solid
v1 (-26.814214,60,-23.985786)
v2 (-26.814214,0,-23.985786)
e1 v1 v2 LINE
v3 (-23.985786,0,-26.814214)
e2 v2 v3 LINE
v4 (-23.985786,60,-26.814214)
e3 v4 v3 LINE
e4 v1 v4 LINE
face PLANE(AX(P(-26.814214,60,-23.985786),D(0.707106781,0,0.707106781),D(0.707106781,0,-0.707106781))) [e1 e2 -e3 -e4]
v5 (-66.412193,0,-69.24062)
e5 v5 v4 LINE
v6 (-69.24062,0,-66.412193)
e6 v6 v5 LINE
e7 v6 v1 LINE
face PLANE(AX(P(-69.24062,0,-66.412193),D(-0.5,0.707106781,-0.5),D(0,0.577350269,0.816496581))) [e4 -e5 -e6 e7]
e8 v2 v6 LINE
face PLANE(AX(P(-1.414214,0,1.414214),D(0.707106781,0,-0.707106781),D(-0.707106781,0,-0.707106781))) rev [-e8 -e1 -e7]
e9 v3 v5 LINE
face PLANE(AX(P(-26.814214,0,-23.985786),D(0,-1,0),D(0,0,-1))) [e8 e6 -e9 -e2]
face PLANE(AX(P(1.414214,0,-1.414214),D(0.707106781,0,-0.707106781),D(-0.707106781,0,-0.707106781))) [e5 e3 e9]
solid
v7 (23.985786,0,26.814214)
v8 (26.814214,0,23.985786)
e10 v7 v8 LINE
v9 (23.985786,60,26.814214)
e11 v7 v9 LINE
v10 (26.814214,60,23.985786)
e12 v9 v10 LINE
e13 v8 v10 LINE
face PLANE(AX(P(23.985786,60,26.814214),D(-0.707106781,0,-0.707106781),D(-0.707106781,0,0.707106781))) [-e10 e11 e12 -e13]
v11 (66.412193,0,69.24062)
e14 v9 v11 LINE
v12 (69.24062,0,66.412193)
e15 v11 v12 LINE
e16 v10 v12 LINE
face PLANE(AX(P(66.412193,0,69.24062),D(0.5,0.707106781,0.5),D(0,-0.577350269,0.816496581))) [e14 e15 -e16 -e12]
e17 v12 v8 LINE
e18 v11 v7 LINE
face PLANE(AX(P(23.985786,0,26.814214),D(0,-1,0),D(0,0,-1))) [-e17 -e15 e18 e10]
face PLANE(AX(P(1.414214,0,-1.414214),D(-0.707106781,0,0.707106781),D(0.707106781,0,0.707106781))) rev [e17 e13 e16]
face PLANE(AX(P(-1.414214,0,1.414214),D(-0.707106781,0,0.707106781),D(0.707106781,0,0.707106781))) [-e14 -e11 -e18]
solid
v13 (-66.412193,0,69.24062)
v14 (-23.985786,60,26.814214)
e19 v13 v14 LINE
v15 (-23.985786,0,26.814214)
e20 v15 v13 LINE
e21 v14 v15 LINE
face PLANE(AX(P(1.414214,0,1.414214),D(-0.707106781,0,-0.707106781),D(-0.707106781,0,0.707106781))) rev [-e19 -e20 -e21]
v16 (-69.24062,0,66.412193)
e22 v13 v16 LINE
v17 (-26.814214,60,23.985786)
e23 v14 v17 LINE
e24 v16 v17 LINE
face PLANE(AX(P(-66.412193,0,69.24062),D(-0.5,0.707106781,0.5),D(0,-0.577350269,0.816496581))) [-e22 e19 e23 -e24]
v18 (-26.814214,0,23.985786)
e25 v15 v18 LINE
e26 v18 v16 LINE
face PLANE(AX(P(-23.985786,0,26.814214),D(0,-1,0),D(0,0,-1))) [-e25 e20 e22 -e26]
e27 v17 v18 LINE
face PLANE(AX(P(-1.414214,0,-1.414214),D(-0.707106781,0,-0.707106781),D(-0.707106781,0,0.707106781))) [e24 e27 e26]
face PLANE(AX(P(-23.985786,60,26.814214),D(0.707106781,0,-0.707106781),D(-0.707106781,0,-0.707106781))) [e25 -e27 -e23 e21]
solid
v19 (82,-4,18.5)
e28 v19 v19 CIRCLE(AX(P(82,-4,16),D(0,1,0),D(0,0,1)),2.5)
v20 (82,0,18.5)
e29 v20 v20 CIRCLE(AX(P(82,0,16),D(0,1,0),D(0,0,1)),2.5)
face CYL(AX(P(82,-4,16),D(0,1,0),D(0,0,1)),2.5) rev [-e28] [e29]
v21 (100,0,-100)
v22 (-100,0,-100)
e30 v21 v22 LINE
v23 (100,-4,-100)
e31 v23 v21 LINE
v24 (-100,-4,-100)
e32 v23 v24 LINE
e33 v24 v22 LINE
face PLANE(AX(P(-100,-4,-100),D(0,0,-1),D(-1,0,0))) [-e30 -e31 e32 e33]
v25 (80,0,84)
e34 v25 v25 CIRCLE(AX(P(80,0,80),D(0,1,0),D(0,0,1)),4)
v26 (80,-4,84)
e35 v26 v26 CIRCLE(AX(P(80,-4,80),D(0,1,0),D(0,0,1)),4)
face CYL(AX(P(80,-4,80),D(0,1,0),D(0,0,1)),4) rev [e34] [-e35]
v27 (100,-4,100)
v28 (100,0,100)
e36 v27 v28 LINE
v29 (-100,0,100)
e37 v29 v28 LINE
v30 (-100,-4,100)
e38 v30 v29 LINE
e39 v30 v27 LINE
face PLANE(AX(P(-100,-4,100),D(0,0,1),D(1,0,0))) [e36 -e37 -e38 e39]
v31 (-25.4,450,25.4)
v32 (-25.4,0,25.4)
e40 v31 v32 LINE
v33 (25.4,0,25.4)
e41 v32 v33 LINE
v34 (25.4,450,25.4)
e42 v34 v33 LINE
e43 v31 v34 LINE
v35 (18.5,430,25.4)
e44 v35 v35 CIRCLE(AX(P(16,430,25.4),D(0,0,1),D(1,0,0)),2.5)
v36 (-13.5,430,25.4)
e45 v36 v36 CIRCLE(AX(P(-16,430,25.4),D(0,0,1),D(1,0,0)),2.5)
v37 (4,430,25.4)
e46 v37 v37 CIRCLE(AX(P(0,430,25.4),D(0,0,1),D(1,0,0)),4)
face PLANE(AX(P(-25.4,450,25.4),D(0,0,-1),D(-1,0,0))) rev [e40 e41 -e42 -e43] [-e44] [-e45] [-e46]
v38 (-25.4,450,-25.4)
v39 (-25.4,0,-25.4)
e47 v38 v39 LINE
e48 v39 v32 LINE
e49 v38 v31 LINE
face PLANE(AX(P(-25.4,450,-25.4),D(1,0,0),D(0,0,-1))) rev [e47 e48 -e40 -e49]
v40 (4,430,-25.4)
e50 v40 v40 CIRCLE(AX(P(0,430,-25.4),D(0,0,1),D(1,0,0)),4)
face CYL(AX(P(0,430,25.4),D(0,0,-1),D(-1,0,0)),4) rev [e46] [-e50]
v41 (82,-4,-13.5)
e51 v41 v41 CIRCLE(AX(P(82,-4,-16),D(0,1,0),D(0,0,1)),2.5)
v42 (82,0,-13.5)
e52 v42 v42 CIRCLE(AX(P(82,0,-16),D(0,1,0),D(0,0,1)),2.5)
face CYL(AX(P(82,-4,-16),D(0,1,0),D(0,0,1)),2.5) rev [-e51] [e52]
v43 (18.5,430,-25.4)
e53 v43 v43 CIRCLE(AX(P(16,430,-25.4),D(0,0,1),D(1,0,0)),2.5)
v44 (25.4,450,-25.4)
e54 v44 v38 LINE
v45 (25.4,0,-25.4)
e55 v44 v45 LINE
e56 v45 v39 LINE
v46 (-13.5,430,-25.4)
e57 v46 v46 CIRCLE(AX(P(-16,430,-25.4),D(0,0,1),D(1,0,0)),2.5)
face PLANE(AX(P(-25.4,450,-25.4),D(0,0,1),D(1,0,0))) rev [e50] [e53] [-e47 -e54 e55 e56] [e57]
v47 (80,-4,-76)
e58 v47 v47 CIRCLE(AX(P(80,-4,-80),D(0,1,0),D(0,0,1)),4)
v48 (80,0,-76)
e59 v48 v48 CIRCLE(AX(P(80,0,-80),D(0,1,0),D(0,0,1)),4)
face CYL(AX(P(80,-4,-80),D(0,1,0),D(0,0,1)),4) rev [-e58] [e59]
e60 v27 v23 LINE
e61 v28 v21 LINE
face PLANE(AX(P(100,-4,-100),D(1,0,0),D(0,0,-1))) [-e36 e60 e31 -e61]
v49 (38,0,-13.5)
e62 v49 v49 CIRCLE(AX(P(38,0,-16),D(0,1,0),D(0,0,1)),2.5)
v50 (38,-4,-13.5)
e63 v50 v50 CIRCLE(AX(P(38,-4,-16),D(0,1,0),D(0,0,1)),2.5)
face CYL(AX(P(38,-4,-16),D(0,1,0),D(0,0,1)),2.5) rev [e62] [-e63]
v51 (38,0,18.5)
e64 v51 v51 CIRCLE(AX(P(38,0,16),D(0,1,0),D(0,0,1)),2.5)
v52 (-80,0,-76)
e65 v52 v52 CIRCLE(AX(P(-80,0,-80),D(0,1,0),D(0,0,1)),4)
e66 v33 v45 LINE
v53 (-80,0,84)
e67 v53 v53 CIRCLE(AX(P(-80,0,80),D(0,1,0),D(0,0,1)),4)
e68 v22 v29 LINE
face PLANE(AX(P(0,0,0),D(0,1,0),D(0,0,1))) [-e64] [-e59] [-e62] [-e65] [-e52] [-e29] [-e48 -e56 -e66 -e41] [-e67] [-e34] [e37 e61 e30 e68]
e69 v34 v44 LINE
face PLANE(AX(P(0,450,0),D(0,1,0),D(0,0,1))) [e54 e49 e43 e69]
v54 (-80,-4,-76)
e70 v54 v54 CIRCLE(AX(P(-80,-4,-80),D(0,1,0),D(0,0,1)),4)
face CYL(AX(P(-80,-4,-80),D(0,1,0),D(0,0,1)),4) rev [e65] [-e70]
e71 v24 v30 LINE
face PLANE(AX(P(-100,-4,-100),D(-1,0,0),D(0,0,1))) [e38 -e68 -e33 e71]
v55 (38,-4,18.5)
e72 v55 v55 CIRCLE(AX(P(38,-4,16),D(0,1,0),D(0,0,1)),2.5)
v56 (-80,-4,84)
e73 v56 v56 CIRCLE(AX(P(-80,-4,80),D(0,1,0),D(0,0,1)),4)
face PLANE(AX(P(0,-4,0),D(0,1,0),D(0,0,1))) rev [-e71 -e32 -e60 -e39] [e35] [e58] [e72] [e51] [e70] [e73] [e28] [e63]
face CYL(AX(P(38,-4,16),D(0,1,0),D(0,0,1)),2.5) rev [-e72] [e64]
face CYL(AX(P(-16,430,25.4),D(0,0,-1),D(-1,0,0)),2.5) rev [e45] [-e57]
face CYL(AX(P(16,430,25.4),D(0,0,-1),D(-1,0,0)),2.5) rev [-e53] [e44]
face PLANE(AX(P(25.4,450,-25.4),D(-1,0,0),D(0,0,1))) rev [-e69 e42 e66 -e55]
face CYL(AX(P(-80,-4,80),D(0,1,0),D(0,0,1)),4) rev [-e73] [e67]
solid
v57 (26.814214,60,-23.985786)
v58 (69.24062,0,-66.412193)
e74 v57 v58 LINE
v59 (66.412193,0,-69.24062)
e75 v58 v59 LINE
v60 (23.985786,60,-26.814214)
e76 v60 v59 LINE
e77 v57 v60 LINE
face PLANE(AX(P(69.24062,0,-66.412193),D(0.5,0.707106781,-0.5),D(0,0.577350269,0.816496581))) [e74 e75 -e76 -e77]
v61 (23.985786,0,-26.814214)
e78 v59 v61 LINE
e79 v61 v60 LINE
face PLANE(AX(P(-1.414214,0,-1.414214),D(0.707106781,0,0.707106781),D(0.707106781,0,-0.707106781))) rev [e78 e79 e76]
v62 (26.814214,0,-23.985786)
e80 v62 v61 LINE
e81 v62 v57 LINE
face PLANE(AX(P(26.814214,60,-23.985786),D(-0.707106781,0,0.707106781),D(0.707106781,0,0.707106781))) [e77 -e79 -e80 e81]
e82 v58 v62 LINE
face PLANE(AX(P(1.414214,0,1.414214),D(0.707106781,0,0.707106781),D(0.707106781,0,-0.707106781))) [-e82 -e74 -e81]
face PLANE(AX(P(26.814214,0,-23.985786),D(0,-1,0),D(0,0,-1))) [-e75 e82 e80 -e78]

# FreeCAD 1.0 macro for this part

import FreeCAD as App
import Part
import Sketcher
Q = App.Units.Quantity


def add_polygon(sketch, points):
    """Adds a closed chain of lines whose ends are joined by coincident constraints."""
    first, n = sketch.GeometryCount, len(points)
    for a, b in zip(points, points[1:] + points[:1]):
        sketch.addGeometry(Part.LineSegment(App.Vector(*a, 0), App.Vector(*b, 0)), False)
    for i in range(n):
        sketch.addConstraint(Sketcher.Constraint("Coincident", first + i, 2, first + (i + 1) % n, 1))

doc = App.newDocument("Part")
body = doc.addObject("PartDesign::Body", "Body")

sketch1 = body.newObject("Sketcher::SketchObject", "Sketch")
sketch1.AttachmentSupport = (doc.getObject("XZ_Plane"), [""])
sketch1.MapMode = "FlatFace"
add_polygon(sketch1, [(-100, -100), (-100, 100), (100, 100), (100, -100)])
sketch1.addConstraint([
    Sketcher.Constraint("Vertical", 0),
    Sketcher.Constraint("Horizontal", 1),
    Sketcher.Constraint("Vertical", 2),
    Sketcher.Constraint("Horizontal", 3),
    Sketcher.Constraint("Symmetric", 0, 2, 2, 2, -1, 1),
    Sketcher.Constraint("Equal", 3, 0),
    Sketcher.Constraint("DistanceX", 1, 1, 1, 2, Q("200 mm")),
])
pad1 = body.newObject("PartDesign::Pad", "Pad")
pad1.Profile = sketch1
pad1.Length = 4

sketch2 = body.newObject("Sketcher::SketchObject", "Sketch001")
sketch2.AttachmentSupport = (doc.getObject("XZ_Plane"), [""])
sketch2.MapMode = "FlatFace"
add_polygon(sketch2, [(-25, -25), (-25, 25), (25, 25), (25, -25)])
sketch2.addConstraint([
    Sketcher.Constraint("Vertical", 0),
    Sketcher.Constraint("Horizontal", 1),
    Sketcher.Constraint("Vertical", 2),
    Sketcher.Constraint("Horizontal", 3),
    Sketcher.Constraint("Symmetric", 0, 2, 2, 2, -1, 1),
    Sketcher.Constraint("Equal", 3, 0),
    Sketcher.Constraint("DistanceX", 1, 1, 1, 2, Q("50.8 mm")),
])
pad2 = body.newObject("PartDesign::Pad", "Pad001")
pad2.Profile = sketch2
pad2.Length = 450
pad2.Reversed = True

sketch3 = body.newObject("Sketcher::SketchObject", "Sketch002")
sketch3.AttachmentSupport = (doc.getObject("XZ_Plane"), [""])
sketch3.MapMode = "FlatFace"
sketch3.addGeometry([
    Part.Circle(App.Vector(80, 80, 0), App.Vector(0, 0, 1), 4),
    Part.Circle(App.Vector(80, -80, 0), App.Vector(0, 0, 1), 4),
    Part.Circle(App.Vector(-80, -80, 0), App.Vector(0, 0, 1), 4),
    Part.Circle(App.Vector(-80, 80, 0), App.Vector(0, 0, 1), 4),
], False)
sketch3.addConstraint([
    Sketcher.Constraint("Equal", 0, 1),
    Sketcher.Constraint("Equal", 1, 2),
    Sketcher.Constraint("Equal", 2, 3),
    Sketcher.Constraint("Symmetric", 0, 3, 2, 3, -1, 1),
    Sketcher.Constraint("Symmetric", 1, 3, 3, 3, -1, 1),
    Sketcher.Constraint("Symmetric", 1, 3, 2, 3, -2),
    Sketcher.Constraint("Diameter", 0, Q("8 mm")),
    Sketcher.Constraint("DistanceX", -1, 1, 0, 3, Q("80 mm")),
    Sketcher.Constraint("DistanceY", -1, 1, 0, 3, Q("80 mm")),
])
pocket1 = body.newObject("PartDesign::Pocket", "Pocket")
pocket1.Profile = sketch3
pocket1.Length = 4
pocket1.Reversed = True

sketch4 = body.newObject("Sketcher::SketchObject", "Sketch003")
sketch4.AttachmentSupport = (doc.getObject("XY_Plane"), [""])
sketch4.MapMode = "FlatFace"
sketch4.addGeometry([
    Part.Circle(App.Vector(0, 430, 0), App.Vector(0, 0, 1), 4),
    Part.Circle(App.Vector(16, 430, 0), App.Vector(0, 0, 1), 2.5),
    Part.Circle(App.Vector(-16, 430, 0), App.Vector(0, 0, 1), 2.5),
], False)
sketch4.addConstraint([
    Sketcher.Constraint("Equal", 1, 2),
    Sketcher.Constraint("Symmetric", 1, 3, 2, 3, -2),
    Sketcher.Constraint("PointOnObject", 0, 3, -2),
    Sketcher.Constraint("Horizontal", 0, 3, 1, 3),
    Sketcher.Constraint("Diameter", 0, Q("8 mm")),
    Sketcher.Constraint("Diameter", 1, Q("5 mm")),
    Sketcher.Constraint("DistanceY", -1, 1, 0, 3, Q("430 mm")),
    Sketcher.Constraint("DistanceX", -1, 1, 1, 3, Q("16 mm")),
])
pocket2 = body.newObject("PartDesign::Pocket", "Pocket001")
pocket2.Profile = sketch4
pocket2.Type = "ThroughAll"
pocket2.Midplane = True

sketch5 = body.newObject("Sketcher::SketchObject", "Sketch004")
sketch5.AttachmentSupport = (doc.getObject("XZ_Plane"), [""])
sketch5.MapMode = "FlatFace"
sketch5.addGeometry([
    Part.Circle(App.Vector(82, -16, 0), App.Vector(0, 0, 1), 2.5),
    Part.Circle(App.Vector(82, 16, 0), App.Vector(0, 0, 1), 2.5),
    Part.Circle(App.Vector(38, -16, 0), App.Vector(0, 0, 1), 2.5),
    Part.Circle(App.Vector(38, 16, 0), App.Vector(0, 0, 1), 2.5),
], False)
sketch5.addConstraint([
    Sketcher.Constraint("Equal", 0, 1),
    Sketcher.Constraint("Equal", 1, 2),
    Sketcher.Constraint("Equal", 2, 3),
    Sketcher.Constraint("Symmetric", 0, 3, 1, 3, -1),
    Sketcher.Constraint("Symmetric", 2, 3, 3, 3, -1),
    Sketcher.Constraint("Horizontal", 0, 3, 2, 3),
    Sketcher.Constraint("Diameter", 0, Q("5 mm")),
    Sketcher.Constraint("DistanceX", -1, 1, 0, 3, Q("82 mm")),
    Sketcher.Constraint("DistanceY", 0, 3, -1, 1, Q("16 mm")),
    Sketcher.Constraint("DistanceX", -1, 1, 2, 3, Q("38 mm")),
])
pocket3 = body.newObject("PartDesign::Pocket", "Pocket002")
pocket3.Profile = sketch5
pocket3.Length = 4
pocket3.Reversed = True
body2 = doc.addObject("PartDesign::Body", "Body001")

sketch6 = body2.newObject("Sketcher::SketchObject", "Sketch005")
sketch6.Placement = App.Placement(App.Vector(0, 0, 0), App.Rotation(App.Vector(-0.707106781, 0, -0.707106781), App.Vector(0, 0.999999999, 0), App.Vector(0.707106781, 0, -0.707106781), "ZXY"))
add_polygon(sketch6, [(36, 0), (96, 0), (36, 60)])
sketch6.addConstraint([
    Sketcher.Constraint("Horizontal", 0),
    Sketcher.Constraint("Vertical", 2),
    Sketcher.Constraint("PointOnObject", 0, 2, -1),
    Sketcher.Constraint("Equal", 0, 2),
    Sketcher.Constraint("DistanceX", 0, 1, 0, 2, Q("60 mm")),
    Sketcher.Constraint("DistanceX", -1, 1, 0, 2, Q("95.921024 mm")),
])
pad3 = body2.newObject("PartDesign::Pad", "Pad002")
pad3.Profile = sketch6
pad3.Type = "TwoLengths"
pad3.Length = 2
pad3.Length2 = 2
body3 = doc.addObject("PartDesign::Body", "Body002")

sketch7 = body3.newObject("Sketcher::SketchObject", "Sketch006")
sketch7.Placement = App.Placement(App.Vector(0, 0, 0), App.Rotation(App.Vector(-0.707106781, 0, -0.707106781), App.Vector(0, 0.999999999, 0), App.Vector(0.707106781, 0, -0.707106781), "ZXY"))
add_polygon(sketch7, [(-96, 0), (-36, 0), (-36, 60)])
sketch7.addConstraint([
    Sketcher.Constraint("Horizontal", 0),
    Sketcher.Constraint("Vertical", 1),
    Sketcher.Constraint("PointOnObject", 0, 2, -1),
    Sketcher.Constraint("Equal", 0, 1),
    Sketcher.Constraint("DistanceX", 0, 1, 0, 2, Q("60 mm")),
    Sketcher.Constraint("DistanceX", 0, 2, -1, 1, Q("35.921024 mm")),
])
pad4 = body3.newObject("PartDesign::Pad", "Pad003")
pad4.Profile = sketch7
pad4.Type = "TwoLengths"
pad4.Length = 2
pad4.Length2 = 2
body4 = doc.addObject("PartDesign::Body", "Body003")

sketch8 = body4.newObject("Sketcher::SketchObject", "Sketch007")
sketch8.Placement = App.Placement(App.Vector(0, 0, 0), App.Rotation(App.Vector(-0.707106781, 0, 0.707106781), App.Vector(0, 0.999999999, 0), App.Vector(-0.707106781, 0, -0.707106781), "ZXY"))
add_polygon(sketch8, [(36, 0), (96, 0), (36, 60)])
sketch8.addConstraint([
    Sketcher.Constraint("Horizontal", 0),
    Sketcher.Constraint("Vertical", 2),
    Sketcher.Constraint("PointOnObject", 0, 2, -1),
    Sketcher.Constraint("Equal", 0, 2),
    Sketcher.Constraint("DistanceX", 0, 1, 0, 2, Q("60 mm")),
    Sketcher.Constraint("DistanceX", -1, 1, 0, 2, Q("95.921024 mm")),
])
pad5 = body4.newObject("PartDesign::Pad", "Pad004")
pad5.Profile = sketch8
pad5.Type = "TwoLengths"
pad5.Length = 2
pad5.Length2 = 2
body5 = doc.addObject("PartDesign::Body", "Body004")

sketch9 = body5.newObject("Sketcher::SketchObject", "Sketch008")
sketch9.Placement = App.Placement(App.Vector(0, 0, 0), App.Rotation(App.Vector(-0.707106781, 0, 0.707106781), App.Vector(0, 0.999999999, 0), App.Vector(-0.707106781, 0, -0.707106781), "ZXY"))
add_polygon(sketch9, [(-96, 0), (-36, 0), (-36, 60)])
sketch9.addConstraint([
    Sketcher.Constraint("Horizontal", 0),
    Sketcher.Constraint("Vertical", 1),
    Sketcher.Constraint("PointOnObject", 0, 2, -1),
    Sketcher.Constraint("Equal", 0, 1),
    Sketcher.Constraint("DistanceX", 0, 1, 0, 2, Q("60 mm")),
    Sketcher.Constraint("DistanceX", 0, 2, -1, 1, Q("35.921024 mm")),
])
pad6 = body5.newObject("PartDesign::Pad", "Pad005")
pad6.Profile = sketch9
pad6.Type = "TwoLengths"
pad6.Length = 2
pad6.Length2 = 2

doc.recompute()
